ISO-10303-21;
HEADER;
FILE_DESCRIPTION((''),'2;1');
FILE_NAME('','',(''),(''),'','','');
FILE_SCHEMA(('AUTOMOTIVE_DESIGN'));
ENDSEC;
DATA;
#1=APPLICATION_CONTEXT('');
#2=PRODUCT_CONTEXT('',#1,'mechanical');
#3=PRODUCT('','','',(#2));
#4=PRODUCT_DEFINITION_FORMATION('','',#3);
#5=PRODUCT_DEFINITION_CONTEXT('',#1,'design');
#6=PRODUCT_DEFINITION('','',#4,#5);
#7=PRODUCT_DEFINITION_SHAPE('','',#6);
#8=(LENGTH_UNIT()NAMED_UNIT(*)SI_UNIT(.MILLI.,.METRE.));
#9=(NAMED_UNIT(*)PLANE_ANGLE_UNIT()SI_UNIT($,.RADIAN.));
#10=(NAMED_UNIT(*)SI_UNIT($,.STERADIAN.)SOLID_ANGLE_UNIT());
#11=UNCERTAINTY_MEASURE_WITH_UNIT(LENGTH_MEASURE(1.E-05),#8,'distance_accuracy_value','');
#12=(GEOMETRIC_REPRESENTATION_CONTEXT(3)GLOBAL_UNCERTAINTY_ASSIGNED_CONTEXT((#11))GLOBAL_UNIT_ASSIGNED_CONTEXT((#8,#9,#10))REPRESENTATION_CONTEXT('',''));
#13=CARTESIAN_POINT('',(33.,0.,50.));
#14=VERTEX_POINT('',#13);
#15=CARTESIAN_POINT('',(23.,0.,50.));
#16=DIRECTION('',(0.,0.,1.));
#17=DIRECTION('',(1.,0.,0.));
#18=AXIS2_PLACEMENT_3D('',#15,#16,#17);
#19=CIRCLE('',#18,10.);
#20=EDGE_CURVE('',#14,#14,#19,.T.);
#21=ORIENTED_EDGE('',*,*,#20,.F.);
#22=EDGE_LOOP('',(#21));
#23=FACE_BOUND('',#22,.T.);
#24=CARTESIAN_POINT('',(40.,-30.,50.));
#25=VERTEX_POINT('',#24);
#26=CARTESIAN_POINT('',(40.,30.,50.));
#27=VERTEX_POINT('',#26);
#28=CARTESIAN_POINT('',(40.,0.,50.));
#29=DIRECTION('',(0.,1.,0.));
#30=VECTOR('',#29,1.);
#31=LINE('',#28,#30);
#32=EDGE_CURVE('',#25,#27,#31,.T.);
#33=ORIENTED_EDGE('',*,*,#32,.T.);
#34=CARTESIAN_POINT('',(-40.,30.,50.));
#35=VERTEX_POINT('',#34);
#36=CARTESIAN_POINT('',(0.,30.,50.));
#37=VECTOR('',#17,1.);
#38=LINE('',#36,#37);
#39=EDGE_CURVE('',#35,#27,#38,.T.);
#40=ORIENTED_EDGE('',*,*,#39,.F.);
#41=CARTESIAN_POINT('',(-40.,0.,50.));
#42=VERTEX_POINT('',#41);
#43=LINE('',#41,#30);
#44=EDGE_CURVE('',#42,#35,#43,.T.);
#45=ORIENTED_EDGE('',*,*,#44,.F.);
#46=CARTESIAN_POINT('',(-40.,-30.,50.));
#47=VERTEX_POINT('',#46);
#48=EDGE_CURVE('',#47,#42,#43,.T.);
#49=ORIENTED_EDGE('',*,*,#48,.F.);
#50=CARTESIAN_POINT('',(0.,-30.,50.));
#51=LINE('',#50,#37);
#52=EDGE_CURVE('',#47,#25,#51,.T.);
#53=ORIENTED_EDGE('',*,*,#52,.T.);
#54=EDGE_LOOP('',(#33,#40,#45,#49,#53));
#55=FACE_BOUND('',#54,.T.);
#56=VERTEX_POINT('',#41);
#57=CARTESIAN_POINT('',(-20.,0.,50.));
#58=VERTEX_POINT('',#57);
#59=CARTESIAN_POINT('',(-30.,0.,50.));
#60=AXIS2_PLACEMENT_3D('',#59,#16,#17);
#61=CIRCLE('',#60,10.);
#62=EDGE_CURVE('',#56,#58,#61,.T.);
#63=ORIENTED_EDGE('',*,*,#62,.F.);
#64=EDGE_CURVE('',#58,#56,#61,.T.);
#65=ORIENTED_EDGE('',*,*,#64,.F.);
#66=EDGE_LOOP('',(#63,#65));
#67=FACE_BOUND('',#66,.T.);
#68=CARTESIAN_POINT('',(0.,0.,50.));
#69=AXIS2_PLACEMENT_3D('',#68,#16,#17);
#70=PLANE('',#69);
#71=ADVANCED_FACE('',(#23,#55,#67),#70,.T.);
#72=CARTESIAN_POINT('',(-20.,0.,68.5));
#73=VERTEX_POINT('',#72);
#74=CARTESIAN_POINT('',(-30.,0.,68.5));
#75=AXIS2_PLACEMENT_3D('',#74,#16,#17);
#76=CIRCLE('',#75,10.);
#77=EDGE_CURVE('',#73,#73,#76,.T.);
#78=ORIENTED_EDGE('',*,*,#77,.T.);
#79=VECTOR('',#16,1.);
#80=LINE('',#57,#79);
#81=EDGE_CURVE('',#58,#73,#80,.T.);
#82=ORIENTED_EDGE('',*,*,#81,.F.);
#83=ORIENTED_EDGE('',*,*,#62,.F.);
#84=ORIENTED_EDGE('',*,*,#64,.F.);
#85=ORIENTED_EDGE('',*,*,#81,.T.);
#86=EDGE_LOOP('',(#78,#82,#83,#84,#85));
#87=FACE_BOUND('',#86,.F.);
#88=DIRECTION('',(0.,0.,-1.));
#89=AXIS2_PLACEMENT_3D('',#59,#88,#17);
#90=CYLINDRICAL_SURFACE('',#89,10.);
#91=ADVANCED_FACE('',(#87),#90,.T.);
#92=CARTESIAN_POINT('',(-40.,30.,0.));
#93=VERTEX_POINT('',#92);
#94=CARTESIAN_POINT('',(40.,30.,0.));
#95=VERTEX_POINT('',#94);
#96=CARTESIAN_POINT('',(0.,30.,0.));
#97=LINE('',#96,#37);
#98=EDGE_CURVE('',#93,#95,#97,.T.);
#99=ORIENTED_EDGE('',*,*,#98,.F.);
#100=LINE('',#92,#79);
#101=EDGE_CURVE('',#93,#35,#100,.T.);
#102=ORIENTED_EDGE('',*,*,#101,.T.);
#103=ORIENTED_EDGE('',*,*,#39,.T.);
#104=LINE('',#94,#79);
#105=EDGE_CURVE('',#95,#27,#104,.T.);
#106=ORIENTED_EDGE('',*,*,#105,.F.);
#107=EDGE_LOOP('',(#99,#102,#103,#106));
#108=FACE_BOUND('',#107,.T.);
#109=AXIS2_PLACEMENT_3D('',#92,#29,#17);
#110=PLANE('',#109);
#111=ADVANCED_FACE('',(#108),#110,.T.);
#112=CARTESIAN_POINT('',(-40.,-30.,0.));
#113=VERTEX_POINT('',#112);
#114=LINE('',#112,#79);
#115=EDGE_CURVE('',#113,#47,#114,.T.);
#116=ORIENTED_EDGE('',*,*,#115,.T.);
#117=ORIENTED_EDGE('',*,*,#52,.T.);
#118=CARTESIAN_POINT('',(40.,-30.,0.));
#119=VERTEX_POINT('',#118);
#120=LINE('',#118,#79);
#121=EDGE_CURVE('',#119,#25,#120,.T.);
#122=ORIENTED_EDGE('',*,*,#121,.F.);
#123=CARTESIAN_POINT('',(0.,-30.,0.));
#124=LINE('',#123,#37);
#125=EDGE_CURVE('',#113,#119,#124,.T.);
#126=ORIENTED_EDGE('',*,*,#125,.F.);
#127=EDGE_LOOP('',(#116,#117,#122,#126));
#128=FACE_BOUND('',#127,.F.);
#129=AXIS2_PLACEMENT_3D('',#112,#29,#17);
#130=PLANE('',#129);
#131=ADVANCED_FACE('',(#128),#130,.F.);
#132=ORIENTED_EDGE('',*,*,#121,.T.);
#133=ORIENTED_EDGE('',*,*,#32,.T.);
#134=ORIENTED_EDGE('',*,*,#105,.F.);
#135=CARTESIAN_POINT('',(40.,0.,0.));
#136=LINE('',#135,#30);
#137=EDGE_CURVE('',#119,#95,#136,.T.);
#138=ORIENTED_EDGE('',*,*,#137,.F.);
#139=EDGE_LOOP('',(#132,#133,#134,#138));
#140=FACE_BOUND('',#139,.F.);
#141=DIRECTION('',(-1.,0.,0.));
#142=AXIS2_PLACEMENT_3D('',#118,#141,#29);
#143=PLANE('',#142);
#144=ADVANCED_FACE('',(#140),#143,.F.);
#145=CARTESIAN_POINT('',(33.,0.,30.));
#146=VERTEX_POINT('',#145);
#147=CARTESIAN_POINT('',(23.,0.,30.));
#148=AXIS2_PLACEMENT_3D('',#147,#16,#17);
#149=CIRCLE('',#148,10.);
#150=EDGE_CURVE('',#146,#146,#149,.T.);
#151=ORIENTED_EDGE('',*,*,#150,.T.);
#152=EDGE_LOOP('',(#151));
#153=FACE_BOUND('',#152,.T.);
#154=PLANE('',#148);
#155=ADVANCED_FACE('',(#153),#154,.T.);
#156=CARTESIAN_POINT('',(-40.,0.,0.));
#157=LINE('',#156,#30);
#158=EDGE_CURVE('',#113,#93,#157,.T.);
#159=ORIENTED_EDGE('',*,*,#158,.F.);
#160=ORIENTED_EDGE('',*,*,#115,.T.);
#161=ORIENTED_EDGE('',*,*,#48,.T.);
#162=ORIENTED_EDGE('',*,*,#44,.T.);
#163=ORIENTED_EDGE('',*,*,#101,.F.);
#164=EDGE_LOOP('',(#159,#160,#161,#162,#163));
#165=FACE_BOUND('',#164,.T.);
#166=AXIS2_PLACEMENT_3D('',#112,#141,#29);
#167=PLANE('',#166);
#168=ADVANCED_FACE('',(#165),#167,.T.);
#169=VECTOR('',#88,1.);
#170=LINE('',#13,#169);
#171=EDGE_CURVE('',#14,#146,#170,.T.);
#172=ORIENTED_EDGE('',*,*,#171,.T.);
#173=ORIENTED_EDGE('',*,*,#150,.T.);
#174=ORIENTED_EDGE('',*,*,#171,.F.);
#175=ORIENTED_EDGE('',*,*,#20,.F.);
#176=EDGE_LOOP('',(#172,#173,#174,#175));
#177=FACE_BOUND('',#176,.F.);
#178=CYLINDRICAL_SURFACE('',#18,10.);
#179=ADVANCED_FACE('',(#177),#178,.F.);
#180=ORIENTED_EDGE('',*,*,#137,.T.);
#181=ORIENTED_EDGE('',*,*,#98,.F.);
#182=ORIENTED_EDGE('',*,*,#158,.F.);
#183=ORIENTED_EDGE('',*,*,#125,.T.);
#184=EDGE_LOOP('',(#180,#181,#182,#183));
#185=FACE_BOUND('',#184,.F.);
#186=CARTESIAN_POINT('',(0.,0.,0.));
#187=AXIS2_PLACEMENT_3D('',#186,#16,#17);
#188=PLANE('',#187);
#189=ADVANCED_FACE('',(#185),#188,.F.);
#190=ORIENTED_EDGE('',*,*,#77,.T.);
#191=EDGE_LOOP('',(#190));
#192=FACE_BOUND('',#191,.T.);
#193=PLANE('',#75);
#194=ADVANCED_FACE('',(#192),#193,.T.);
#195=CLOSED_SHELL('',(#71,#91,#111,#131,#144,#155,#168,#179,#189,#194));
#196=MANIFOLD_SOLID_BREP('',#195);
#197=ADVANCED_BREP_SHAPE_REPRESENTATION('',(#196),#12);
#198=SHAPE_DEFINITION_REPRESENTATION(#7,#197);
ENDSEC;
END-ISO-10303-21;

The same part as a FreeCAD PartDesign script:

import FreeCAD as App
import Part
import Sketcher
Q = App.Units.Quantity

doc = App.newDocument("Part")
body = doc.addObject("PartDesign::Body", "Body")

# Sketch on XY plane
sketch1 = doc.addObject("Sketcher::SketchObject", "Sketch")
body.addObject(sketch1)
sketch1.AttachmentSupport = (doc.XY_Plane, [""])
sketch1.MapMode = "FlatFace"
sketch1.addGeometry([
    Part.LineSegment(App.Vector(-40, 30, 0), App.Vector(-40, -30, 0)),
    Part.LineSegment(App.Vector(-40, -30, 0), App.Vector(40, -30, 0)),
    Part.LineSegment(App.Vector(40, -30, 0), App.Vector(40, 30, 0)),
    Part.LineSegment(App.Vector(40, 30, 0), App.Vector(-40, 30, 0)),
], False)
sketch1.addConstraint([
    Sketcher.Constraint("Coincident", 0, 2, 1, 1),
    Sketcher.Constraint("Coincident", 1, 2, 2, 1),
    Sketcher.Constraint("Coincident", 2, 2, 3, 1),
    Sketcher.Constraint("Coincident", 3, 2, 0, 1),
    Sketcher.Constraint("Vertical", 0),
    Sketcher.Constraint("Horizontal", 1),
    Sketcher.Constraint("Vertical", 2),
    Sketcher.Constraint("Horizontal", 3),
    Sketcher.Constraint("Symmetric", 0, 2, 2, 2, -1, 1),
    Sketcher.Constraint("DistanceX", 1, 1, 1, 2, Q("80 mm")),
    Sketcher.Constraint("DistanceY", 0, 2, 0, 1, Q("60 mm")),
])
pad1 = doc.addObject("PartDesign::Pad", "Pad")
body.addObject(pad1)
pad1.Profile = sketch1
pad1.Length = 50

# Sketch on XY plane
sketch2 = doc.addObject("Sketcher::SketchObject", "Sketch001")
body.addObject(sketch2)
sketch2.AttachmentSupport = (doc.XY_Plane, [""])
sketch2.MapMode = "FlatFace"
sketch2.AttachmentOffset = App.Placement(App.Vector(0, 0, 50), App.Rotation())
sketch2.addGeometry(Part.Circle(App.Vector(-30, 0, 0), App.Vector(0, 0, 1), 10), False)
sketch2.addConstraint([
    Sketcher.Constraint("PointOnObject", 0, 3, -1),
    Sketcher.Constraint("Diameter", 0, Q("20 mm")),
    Sketcher.Constraint("DistanceX", 0, 3, -1, 1, Q("30 mm")),
])
pad2 = doc.addObject("PartDesign::Pad", "Pad001")
body.addObject(pad2)
pad2.Profile = sketch2
pad2.Length = 18.5

# Sketch on XY plane
sketch3 = doc.addObject("Sketcher::SketchObject", "Sketch002")
body.addObject(sketch3)
sketch3.AttachmentSupport = (doc.XY_Plane, [""])
sketch3.MapMode = "FlatFace"
sketch3.AttachmentOffset = App.Placement(App.Vector(0, 0, 50), App.Rotation())
sketch3.addGeometry(Part.Circle(App.Vector(23, 0, 0), App.Vector(0, 0, 1), 10), False)
sketch3.addConstraint([
    Sketcher.Constraint("PointOnObject", 0, 3, -1),
    Sketcher.Constraint("Diameter", 0, Q("20 mm")),
    Sketcher.Constraint("DistanceX", -1, 1, 0, 3, Q("23 mm")),
])
pocket1 = doc.addObject("PartDesign::Pocket", "Pocket")
body.addObject(pocket1)
pocket1.Profile = sketch3
pocket1.Length = 20

doc.recompute()
